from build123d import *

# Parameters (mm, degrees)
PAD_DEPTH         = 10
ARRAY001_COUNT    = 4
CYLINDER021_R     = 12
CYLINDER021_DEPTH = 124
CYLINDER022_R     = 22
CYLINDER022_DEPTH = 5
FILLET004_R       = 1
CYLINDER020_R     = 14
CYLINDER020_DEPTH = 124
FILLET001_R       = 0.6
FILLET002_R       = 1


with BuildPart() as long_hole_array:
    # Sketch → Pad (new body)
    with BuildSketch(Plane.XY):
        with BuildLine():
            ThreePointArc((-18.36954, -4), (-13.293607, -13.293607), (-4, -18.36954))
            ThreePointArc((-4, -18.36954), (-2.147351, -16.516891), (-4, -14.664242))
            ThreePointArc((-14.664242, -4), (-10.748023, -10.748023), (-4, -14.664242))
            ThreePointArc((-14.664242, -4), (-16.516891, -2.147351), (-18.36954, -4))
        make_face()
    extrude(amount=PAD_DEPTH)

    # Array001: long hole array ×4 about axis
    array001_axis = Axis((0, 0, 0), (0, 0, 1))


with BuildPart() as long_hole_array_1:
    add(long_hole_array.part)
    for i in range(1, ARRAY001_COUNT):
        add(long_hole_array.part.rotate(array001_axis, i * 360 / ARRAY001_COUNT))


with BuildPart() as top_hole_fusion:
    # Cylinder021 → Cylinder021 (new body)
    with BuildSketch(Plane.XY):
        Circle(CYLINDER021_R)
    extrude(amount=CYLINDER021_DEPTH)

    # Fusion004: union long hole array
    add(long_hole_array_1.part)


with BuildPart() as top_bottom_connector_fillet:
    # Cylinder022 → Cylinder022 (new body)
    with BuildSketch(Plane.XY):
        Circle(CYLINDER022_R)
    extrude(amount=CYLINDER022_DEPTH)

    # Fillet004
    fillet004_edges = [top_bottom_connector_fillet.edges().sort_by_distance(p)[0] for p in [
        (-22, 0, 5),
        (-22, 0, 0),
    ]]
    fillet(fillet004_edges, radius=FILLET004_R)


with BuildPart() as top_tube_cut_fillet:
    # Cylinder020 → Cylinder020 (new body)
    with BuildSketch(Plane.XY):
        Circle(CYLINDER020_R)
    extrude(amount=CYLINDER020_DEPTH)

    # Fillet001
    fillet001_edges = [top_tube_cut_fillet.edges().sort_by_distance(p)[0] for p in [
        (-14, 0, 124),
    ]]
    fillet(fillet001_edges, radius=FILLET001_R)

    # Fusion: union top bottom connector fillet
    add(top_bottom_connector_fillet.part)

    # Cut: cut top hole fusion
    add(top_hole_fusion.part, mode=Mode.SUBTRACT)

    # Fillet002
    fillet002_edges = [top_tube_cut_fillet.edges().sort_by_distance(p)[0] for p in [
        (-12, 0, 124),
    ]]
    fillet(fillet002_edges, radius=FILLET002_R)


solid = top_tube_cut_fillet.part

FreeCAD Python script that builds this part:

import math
import FreeCAD as App
import Part
import Sketcher
from FreeCAD import Vector
Q = App.Units.Quantity


def edges_at(feature, points):
    """Names of the edges that pass closest to the given points."""
    edges = feature.Shape.Edges
    near = lambda p: min(range(len(edges)), key=lambda i: edges[i].distToShape(Part.Vertex(*p))[0])
    return sorted({f"Edge{near(p) + 1}" for p in points})

doc = App.newDocument("Part")
body = doc.addObject("PartDesign::Body", "Body")

# Sketch on XY plane
sketch1 = body.newObject("Sketcher::SketchObject", "Sketch")
sketch1.AttachmentSupport = (doc.getObject("XY_Plane"), [""])
sketch1.MapMode = "FlatFace"
sketch1.addGeometry(Part.ArcOfCircle(Part.Circle(Vector(0, 0, 0), Vector(0, 0, 1), 18.8), math.radians(-168), math.radians(-102)), False)
sketch1.addGeometry(Part.ArcOfCircle(Part.Circle(Vector(-4, -16.5, 0), Vector(0, 0, 1), 1.9), math.radians(-90), math.radians(90)), False)
sketch1.addGeometry(Part.ArcOfCircle(Part.Circle(Vector(0, 0, 0), Vector(0, 0, 1), 15.2), math.radians(-165), math.radians(-105)), False)
sketch1.addGeometry(Part.ArcOfCircle(Part.Circle(Vector(-16.5, -4, 0), Vector(0, 0, 1), 1.9), math.radians(0), math.radians(180)), False)
sketch1.addConstraint(Sketcher.Constraint("Coincident", 0, 2, 1, 1))
sketch1.addConstraint(Sketcher.Constraint("Coincident", 1, 2, 2, 2))
sketch1.addConstraint(Sketcher.Constraint("Coincident", 2, 1, 3, 1))
sketch1.addConstraint(Sketcher.Constraint("Coincident", 3, 2, 0, 1))
sketch1.addConstraint(Sketcher.Constraint("Coincident", 0, 3, -1, 1))
sketch1.addConstraint(Sketcher.Constraint("Coincident", 2, 3, -1, 1))
sketch1.addConstraint(Sketcher.Constraint("Equal", 1, 3))
sketch1.addConstraint(Sketcher.Constraint("Horizontal", 3, 3, 2, 1))
sketch1.addConstraint(Sketcher.Constraint("Horizontal", 2, 1, 3, 2))
sketch1.addConstraint(Sketcher.Constraint("Vertical", 1, 3, 0, 2))
sketch1.addConstraint(Sketcher.Constraint("Vertical", 0, 2, 1, 2))
sketch1.addConstraint(Sketcher.Constraint("Radius", 2, Q("15.199999 mm")))
sketch1.addConstraint(Sketcher.Constraint("DistanceX", 1, 3, -1, 1, Q("4 mm")))
sketch1.addConstraint(Sketcher.Constraint("Radius", 1, Q("1.852649 mm")))
pad1 = body.newObject("PartDesign::Pad", "Pad")
pad1.Profile = sketch1
pad1.Length = 10
body2 = doc.addObject("PartDesign::Body", "Body001")
body2.AllowCompound = True
doc.recompute()

body2.BaseFeature = body
doc.recompute()

body3 = doc.addObject("PartDesign::Body", "Body002")
body3.BaseFeature = body
body3.Placement = App.Placement(Vector(0, 0, 0), App.Rotation(Vector(0, 0, 1), 90))
boolean = body2.newObject("PartDesign::Boolean", "Boolean")
boolean.Type = "Fuse"
boolean.addObjects([body3])
doc.recompute()

body4 = doc.addObject("PartDesign::Body", "Body003")
body4.BaseFeature = body
body4.Placement = App.Placement(Vector(0, 0, 0), App.Rotation(Vector(0, 0, 1), 180))
boolean2 = body2.newObject("PartDesign::Boolean", "Boolean001")
boolean2.Type = "Fuse"
boolean2.addObjects([body4])
doc.recompute()

body.Placement = App.Placement(Vector(0, 0, 0), App.Rotation(Vector(0, 0, 1), 270))
boolean3 = body2.newObject("PartDesign::Boolean", "Boolean002")
boolean3.Type = "Fuse"
boolean3.addObjects([body])
body5 = doc.addObject("PartDesign::Body", "Body004")
body5.AllowCompound = True

# Sketch on XY plane
sketch2 = body5.newObject("Sketcher::SketchObject", "Sketch001")
sketch2.AttachmentSupport = (doc.getObject("XY_Plane004"), [""])
sketch2.MapMode = "FlatFace"
sketch2.addGeometry(Part.Circle(Vector(0, 0, 0), Vector(0, 0, 1), 12), False)
sketch2.addConstraint(Sketcher.Constraint("Coincident", 0, 3, -1, 1))
sketch2.addConstraint(Sketcher.Constraint("Diameter", 0, Q("24 mm")))
pad2 = body5.newObject("PartDesign::Pad", "Pad001")
pad2.Profile = sketch2
pad2.Length = 124
doc.recompute()

boolean4 = body5.newObject("PartDesign::Boolean", "Boolean003")
boolean4.Type = "Fuse"
boolean4.addObjects([body2])
body6 = doc.addObject("PartDesign::Body", "Body005")

# Sketch on XY plane
sketch3 = body6.newObject("Sketcher::SketchObject", "Sketch002")
sketch3.AttachmentSupport = (doc.getObject("XY_Plane005"), [""])
sketch3.MapMode = "FlatFace"
sketch3.addGeometry(Part.Circle(Vector(0, 0, 0), Vector(0, 0, 1), 22), False)
sketch3.addConstraint(Sketcher.Constraint("Coincident", 0, 3, -1, 1))
sketch3.addConstraint(Sketcher.Constraint("Diameter", 0, Q("44 mm")))
pad3 = body6.newObject("PartDesign::Pad", "Pad002")
pad3.Profile = sketch3
pad3.Length = 5
doc.recompute()

fillet = body6.newObject("PartDesign::Fillet", "Fillet")
fillet.Base = (pad3, edges_at(pad3, [(-22, 0, 5), (-22, 0, 0)]))
fillet.Radius = 1
body7 = doc.addObject("PartDesign::Body", "Body006")

# Sketch on XY plane
sketch4 = body7.newObject("Sketcher::SketchObject", "Sketch003")
sketch4.AttachmentSupport = (doc.getObject("XY_Plane006"), [""])
sketch4.MapMode = "FlatFace"
sketch4.addGeometry(Part.Circle(Vector(0, 0, 0), Vector(0, 0, 1), 14), False)
sketch4.addConstraint(Sketcher.Constraint("Coincident", 0, 3, -1, 1))
sketch4.addConstraint(Sketcher.Constraint("Diameter", 0, Q("28 mm")))
pad4 = body7.newObject("PartDesign::Pad", "Pad003")
pad4.Profile = sketch4
pad4.Length = 124
doc.recompute()

fillet2 = body7.newObject("PartDesign::Fillet", "Fillet001")
fillet2.Base = (pad4, edges_at(pad4, [(-14, 0, 124)]))
fillet2.Radius = 0.6
doc.recompute()

boolean5 = body7.newObject("PartDesign::Boolean", "Boolean004")
boolean5.Type = "Fuse"
boolean5.addObjects([body6])
doc.recompute()

boolean6 = body7.newObject("PartDesign::Boolean", "Boolean005")
boolean6.Type = "Cut"
boolean6.addObjects([body5])
doc.recompute()

fillet3 = body7.newObject("PartDesign::Fillet", "Fillet002")
fillet3.Base = (boolean6, edges_at(boolean6, [(-12, 0, 124)]))
fillet3.Radius = 1

doc.recompute()
